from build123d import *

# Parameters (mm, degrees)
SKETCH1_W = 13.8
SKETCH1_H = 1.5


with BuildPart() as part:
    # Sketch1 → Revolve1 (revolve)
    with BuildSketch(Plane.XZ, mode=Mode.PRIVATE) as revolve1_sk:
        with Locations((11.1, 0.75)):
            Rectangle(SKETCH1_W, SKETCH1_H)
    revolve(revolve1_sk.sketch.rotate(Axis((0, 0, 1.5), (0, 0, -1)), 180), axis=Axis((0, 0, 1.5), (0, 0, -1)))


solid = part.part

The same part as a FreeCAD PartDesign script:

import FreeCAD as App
import Part
import Sketcher

V = App.Vector
Q = App.Units.Quantity

doc = App.newDocument("Part")
body = doc.addObject("PartDesign::Body", "Body")

# Sketch on XZ plane
sketch1 = body.newObject("Sketcher::SketchObject", "Sketch")
sketch1.AttachmentSupport = (doc.getObject("XZ_Plane"), [""])
sketch1.MapMode = "FlatFace"
sketch1.addGeometry([
    Part.LineSegment(V(4.2, 1.5, 0), V(4.2, 0, 0)),
    Part.LineSegment(V(4.2, 0, 0), V(18, 0, 0)),
    Part.LineSegment(V(18, 0, 0), V(18, 1.5, 0)),
    Part.LineSegment(V(18, 1.5, 0), V(4.2, 1.5, 0)),
], False)
sketch1.addConstraint([
    Sketcher.Constraint("Coincident", 0, 2, 1, 1),
    Sketcher.Constraint("Coincident", 1, 2, 2, 1),
    Sketcher.Constraint("Coincident", 2, 2, 3, 1),
    Sketcher.Constraint("Coincident", 3, 2, 0, 1),
    Sketcher.Constraint("Vertical", 0),
    Sketcher.Constraint("Horizontal", 1),
    Sketcher.Constraint("Vertical", 2),
    Sketcher.Constraint("Horizontal", 3),
    Sketcher.Constraint("PointOnObject", 0, 2, -1),
    Sketcher.Constraint("DistanceX", 1, 1, 1, 2, Q("13.8 mm")),
    Sketcher.Constraint("DistanceY", 0, 2, 0, 1, Q("1.5 mm")),
    Sketcher.Constraint("DistanceX", -1, 1, 1, 2, Q("18 mm")),
])
revolution = body.newObject("PartDesign::Revolution", "Revolution")
revolution.Profile = sketch1
revolution.ReferenceAxis = (sketch1, ["V_Axis"])
revolution.Angle = 360

doc.recompute()
